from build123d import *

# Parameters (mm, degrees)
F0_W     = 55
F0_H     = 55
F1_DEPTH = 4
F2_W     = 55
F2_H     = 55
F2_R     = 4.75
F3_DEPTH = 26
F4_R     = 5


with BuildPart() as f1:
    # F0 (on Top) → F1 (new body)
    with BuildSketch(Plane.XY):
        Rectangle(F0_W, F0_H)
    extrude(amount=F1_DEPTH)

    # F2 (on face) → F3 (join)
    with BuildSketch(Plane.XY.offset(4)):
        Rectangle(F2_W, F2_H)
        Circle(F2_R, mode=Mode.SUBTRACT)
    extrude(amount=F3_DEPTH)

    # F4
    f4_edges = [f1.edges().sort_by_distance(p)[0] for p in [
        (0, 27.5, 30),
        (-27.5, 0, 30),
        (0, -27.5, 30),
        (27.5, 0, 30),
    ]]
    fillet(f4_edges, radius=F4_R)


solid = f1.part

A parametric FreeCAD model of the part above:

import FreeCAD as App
import Part
import Sketcher
Q = App.Units.Quantity


def edges_at(feature, points):
    """Names of the edges that pass closest to the given points."""
    edges = feature.Shape.Edges
    near = lambda p: min(range(len(edges)), key=lambda i: edges[i].distToShape(Part.Vertex(*p))[0])
    return sorted({f"Edge{near(p) + 1}" for p in points})


def add_polygon(sketch, points):
    """Adds a closed chain of lines whose ends are joined by coincident constraints."""
    first, n = sketch.GeometryCount, len(points)
    for a, b in zip(points, points[1:] + points[:1]):
        sketch.addGeometry(Part.LineSegment(App.Vector(*a, 0), App.Vector(*b, 0)), False)
    for i in range(n):
        sketch.addConstraint(Sketcher.Constraint("Coincident", first + i, 2, first + (i + 1) % n, 1))

doc = App.newDocument("Part")
body = doc.addObject("PartDesign::Body", "Body")

# Sketch on XY plane
sketch1 = body.newObject("Sketcher::SketchObject", "Sketch")
sketch1.AttachmentSupport = (doc.getObject("XY_Plane"), [""])
sketch1.MapMode = "FlatFace"
add_polygon(sketch1, [(-27.5, 27.5), (-27.5, -27.5), (27.5, -27.5), (27.5, 27.5)])  # lines 0-3
sketch1.addConstraint([
    Sketcher.Constraint("Vertical", 0),
    Sketcher.Constraint("Horizontal", 1),
    Sketcher.Constraint("Vertical", 2),
    Sketcher.Constraint("Horizontal", 3),
    Sketcher.Constraint("Symmetric", 0, 2, 2, 2, -1, 1),
    Sketcher.Constraint("Equal", 3, 0),
    Sketcher.Constraint("DistanceX", 1, 1, 1, 2, Q("55 mm")),
])
pad1 = body.newObject("PartDesign::Pad", "Pad")
pad1.Profile = sketch1
pad1.Length = 4

# Sketch on XY plane
sketch2 = body.newObject("Sketcher::SketchObject", "Sketch001")
sketch2.AttachmentSupport = (doc.getObject("XY_Plane"), [""])
sketch2.MapMode = "FlatFace"
sketch2.AttachmentOffset = App.Placement(App.Vector(0, 0, 4), App.Rotation())
add_polygon(sketch2, [(-27.5, 27.5), (-27.5, -27.5), (27.5, -27.5), (27.5, 27.5)])  # lines 0-3
sketch2.addGeometry(Part.Circle(App.Vector(0, 0, 0), App.Vector(0, 0, 1), 4.75), False)  # 4
sketch2.addConstraint([
    Sketcher.Constraint("Vertical", 0),
    Sketcher.Constraint("Horizontal", 1),
    Sketcher.Constraint("Vertical", 2),
    Sketcher.Constraint("Horizontal", 3),
    Sketcher.Constraint("Coincident", 4, 3, -1, 1),
    Sketcher.Constraint("Symmetric", 0, 2, 2, 2, -1, 1),
    Sketcher.Constraint("Equal", 3, 0),
    Sketcher.Constraint("Diameter", 4, Q("9.5 mm")),
    Sketcher.Constraint("DistanceX", 1, 1, 1, 2, Q("55 mm")),
])
pad2 = body.newObject("PartDesign::Pad", "Pad001")
pad2.Profile = sketch2
pad2.Length = 26
doc.recompute()

fillet = body.newObject("PartDesign::Fillet", "Fillet")
fillet.Base = (pad2, edges_at(pad2, [
    (0, 27.5, 30),
    (-27.5, 0, 30),
    (0, -27.5, 30),
    (27.5, 0, 30),
]))
fillet.Radius = 5

doc.recompute()
